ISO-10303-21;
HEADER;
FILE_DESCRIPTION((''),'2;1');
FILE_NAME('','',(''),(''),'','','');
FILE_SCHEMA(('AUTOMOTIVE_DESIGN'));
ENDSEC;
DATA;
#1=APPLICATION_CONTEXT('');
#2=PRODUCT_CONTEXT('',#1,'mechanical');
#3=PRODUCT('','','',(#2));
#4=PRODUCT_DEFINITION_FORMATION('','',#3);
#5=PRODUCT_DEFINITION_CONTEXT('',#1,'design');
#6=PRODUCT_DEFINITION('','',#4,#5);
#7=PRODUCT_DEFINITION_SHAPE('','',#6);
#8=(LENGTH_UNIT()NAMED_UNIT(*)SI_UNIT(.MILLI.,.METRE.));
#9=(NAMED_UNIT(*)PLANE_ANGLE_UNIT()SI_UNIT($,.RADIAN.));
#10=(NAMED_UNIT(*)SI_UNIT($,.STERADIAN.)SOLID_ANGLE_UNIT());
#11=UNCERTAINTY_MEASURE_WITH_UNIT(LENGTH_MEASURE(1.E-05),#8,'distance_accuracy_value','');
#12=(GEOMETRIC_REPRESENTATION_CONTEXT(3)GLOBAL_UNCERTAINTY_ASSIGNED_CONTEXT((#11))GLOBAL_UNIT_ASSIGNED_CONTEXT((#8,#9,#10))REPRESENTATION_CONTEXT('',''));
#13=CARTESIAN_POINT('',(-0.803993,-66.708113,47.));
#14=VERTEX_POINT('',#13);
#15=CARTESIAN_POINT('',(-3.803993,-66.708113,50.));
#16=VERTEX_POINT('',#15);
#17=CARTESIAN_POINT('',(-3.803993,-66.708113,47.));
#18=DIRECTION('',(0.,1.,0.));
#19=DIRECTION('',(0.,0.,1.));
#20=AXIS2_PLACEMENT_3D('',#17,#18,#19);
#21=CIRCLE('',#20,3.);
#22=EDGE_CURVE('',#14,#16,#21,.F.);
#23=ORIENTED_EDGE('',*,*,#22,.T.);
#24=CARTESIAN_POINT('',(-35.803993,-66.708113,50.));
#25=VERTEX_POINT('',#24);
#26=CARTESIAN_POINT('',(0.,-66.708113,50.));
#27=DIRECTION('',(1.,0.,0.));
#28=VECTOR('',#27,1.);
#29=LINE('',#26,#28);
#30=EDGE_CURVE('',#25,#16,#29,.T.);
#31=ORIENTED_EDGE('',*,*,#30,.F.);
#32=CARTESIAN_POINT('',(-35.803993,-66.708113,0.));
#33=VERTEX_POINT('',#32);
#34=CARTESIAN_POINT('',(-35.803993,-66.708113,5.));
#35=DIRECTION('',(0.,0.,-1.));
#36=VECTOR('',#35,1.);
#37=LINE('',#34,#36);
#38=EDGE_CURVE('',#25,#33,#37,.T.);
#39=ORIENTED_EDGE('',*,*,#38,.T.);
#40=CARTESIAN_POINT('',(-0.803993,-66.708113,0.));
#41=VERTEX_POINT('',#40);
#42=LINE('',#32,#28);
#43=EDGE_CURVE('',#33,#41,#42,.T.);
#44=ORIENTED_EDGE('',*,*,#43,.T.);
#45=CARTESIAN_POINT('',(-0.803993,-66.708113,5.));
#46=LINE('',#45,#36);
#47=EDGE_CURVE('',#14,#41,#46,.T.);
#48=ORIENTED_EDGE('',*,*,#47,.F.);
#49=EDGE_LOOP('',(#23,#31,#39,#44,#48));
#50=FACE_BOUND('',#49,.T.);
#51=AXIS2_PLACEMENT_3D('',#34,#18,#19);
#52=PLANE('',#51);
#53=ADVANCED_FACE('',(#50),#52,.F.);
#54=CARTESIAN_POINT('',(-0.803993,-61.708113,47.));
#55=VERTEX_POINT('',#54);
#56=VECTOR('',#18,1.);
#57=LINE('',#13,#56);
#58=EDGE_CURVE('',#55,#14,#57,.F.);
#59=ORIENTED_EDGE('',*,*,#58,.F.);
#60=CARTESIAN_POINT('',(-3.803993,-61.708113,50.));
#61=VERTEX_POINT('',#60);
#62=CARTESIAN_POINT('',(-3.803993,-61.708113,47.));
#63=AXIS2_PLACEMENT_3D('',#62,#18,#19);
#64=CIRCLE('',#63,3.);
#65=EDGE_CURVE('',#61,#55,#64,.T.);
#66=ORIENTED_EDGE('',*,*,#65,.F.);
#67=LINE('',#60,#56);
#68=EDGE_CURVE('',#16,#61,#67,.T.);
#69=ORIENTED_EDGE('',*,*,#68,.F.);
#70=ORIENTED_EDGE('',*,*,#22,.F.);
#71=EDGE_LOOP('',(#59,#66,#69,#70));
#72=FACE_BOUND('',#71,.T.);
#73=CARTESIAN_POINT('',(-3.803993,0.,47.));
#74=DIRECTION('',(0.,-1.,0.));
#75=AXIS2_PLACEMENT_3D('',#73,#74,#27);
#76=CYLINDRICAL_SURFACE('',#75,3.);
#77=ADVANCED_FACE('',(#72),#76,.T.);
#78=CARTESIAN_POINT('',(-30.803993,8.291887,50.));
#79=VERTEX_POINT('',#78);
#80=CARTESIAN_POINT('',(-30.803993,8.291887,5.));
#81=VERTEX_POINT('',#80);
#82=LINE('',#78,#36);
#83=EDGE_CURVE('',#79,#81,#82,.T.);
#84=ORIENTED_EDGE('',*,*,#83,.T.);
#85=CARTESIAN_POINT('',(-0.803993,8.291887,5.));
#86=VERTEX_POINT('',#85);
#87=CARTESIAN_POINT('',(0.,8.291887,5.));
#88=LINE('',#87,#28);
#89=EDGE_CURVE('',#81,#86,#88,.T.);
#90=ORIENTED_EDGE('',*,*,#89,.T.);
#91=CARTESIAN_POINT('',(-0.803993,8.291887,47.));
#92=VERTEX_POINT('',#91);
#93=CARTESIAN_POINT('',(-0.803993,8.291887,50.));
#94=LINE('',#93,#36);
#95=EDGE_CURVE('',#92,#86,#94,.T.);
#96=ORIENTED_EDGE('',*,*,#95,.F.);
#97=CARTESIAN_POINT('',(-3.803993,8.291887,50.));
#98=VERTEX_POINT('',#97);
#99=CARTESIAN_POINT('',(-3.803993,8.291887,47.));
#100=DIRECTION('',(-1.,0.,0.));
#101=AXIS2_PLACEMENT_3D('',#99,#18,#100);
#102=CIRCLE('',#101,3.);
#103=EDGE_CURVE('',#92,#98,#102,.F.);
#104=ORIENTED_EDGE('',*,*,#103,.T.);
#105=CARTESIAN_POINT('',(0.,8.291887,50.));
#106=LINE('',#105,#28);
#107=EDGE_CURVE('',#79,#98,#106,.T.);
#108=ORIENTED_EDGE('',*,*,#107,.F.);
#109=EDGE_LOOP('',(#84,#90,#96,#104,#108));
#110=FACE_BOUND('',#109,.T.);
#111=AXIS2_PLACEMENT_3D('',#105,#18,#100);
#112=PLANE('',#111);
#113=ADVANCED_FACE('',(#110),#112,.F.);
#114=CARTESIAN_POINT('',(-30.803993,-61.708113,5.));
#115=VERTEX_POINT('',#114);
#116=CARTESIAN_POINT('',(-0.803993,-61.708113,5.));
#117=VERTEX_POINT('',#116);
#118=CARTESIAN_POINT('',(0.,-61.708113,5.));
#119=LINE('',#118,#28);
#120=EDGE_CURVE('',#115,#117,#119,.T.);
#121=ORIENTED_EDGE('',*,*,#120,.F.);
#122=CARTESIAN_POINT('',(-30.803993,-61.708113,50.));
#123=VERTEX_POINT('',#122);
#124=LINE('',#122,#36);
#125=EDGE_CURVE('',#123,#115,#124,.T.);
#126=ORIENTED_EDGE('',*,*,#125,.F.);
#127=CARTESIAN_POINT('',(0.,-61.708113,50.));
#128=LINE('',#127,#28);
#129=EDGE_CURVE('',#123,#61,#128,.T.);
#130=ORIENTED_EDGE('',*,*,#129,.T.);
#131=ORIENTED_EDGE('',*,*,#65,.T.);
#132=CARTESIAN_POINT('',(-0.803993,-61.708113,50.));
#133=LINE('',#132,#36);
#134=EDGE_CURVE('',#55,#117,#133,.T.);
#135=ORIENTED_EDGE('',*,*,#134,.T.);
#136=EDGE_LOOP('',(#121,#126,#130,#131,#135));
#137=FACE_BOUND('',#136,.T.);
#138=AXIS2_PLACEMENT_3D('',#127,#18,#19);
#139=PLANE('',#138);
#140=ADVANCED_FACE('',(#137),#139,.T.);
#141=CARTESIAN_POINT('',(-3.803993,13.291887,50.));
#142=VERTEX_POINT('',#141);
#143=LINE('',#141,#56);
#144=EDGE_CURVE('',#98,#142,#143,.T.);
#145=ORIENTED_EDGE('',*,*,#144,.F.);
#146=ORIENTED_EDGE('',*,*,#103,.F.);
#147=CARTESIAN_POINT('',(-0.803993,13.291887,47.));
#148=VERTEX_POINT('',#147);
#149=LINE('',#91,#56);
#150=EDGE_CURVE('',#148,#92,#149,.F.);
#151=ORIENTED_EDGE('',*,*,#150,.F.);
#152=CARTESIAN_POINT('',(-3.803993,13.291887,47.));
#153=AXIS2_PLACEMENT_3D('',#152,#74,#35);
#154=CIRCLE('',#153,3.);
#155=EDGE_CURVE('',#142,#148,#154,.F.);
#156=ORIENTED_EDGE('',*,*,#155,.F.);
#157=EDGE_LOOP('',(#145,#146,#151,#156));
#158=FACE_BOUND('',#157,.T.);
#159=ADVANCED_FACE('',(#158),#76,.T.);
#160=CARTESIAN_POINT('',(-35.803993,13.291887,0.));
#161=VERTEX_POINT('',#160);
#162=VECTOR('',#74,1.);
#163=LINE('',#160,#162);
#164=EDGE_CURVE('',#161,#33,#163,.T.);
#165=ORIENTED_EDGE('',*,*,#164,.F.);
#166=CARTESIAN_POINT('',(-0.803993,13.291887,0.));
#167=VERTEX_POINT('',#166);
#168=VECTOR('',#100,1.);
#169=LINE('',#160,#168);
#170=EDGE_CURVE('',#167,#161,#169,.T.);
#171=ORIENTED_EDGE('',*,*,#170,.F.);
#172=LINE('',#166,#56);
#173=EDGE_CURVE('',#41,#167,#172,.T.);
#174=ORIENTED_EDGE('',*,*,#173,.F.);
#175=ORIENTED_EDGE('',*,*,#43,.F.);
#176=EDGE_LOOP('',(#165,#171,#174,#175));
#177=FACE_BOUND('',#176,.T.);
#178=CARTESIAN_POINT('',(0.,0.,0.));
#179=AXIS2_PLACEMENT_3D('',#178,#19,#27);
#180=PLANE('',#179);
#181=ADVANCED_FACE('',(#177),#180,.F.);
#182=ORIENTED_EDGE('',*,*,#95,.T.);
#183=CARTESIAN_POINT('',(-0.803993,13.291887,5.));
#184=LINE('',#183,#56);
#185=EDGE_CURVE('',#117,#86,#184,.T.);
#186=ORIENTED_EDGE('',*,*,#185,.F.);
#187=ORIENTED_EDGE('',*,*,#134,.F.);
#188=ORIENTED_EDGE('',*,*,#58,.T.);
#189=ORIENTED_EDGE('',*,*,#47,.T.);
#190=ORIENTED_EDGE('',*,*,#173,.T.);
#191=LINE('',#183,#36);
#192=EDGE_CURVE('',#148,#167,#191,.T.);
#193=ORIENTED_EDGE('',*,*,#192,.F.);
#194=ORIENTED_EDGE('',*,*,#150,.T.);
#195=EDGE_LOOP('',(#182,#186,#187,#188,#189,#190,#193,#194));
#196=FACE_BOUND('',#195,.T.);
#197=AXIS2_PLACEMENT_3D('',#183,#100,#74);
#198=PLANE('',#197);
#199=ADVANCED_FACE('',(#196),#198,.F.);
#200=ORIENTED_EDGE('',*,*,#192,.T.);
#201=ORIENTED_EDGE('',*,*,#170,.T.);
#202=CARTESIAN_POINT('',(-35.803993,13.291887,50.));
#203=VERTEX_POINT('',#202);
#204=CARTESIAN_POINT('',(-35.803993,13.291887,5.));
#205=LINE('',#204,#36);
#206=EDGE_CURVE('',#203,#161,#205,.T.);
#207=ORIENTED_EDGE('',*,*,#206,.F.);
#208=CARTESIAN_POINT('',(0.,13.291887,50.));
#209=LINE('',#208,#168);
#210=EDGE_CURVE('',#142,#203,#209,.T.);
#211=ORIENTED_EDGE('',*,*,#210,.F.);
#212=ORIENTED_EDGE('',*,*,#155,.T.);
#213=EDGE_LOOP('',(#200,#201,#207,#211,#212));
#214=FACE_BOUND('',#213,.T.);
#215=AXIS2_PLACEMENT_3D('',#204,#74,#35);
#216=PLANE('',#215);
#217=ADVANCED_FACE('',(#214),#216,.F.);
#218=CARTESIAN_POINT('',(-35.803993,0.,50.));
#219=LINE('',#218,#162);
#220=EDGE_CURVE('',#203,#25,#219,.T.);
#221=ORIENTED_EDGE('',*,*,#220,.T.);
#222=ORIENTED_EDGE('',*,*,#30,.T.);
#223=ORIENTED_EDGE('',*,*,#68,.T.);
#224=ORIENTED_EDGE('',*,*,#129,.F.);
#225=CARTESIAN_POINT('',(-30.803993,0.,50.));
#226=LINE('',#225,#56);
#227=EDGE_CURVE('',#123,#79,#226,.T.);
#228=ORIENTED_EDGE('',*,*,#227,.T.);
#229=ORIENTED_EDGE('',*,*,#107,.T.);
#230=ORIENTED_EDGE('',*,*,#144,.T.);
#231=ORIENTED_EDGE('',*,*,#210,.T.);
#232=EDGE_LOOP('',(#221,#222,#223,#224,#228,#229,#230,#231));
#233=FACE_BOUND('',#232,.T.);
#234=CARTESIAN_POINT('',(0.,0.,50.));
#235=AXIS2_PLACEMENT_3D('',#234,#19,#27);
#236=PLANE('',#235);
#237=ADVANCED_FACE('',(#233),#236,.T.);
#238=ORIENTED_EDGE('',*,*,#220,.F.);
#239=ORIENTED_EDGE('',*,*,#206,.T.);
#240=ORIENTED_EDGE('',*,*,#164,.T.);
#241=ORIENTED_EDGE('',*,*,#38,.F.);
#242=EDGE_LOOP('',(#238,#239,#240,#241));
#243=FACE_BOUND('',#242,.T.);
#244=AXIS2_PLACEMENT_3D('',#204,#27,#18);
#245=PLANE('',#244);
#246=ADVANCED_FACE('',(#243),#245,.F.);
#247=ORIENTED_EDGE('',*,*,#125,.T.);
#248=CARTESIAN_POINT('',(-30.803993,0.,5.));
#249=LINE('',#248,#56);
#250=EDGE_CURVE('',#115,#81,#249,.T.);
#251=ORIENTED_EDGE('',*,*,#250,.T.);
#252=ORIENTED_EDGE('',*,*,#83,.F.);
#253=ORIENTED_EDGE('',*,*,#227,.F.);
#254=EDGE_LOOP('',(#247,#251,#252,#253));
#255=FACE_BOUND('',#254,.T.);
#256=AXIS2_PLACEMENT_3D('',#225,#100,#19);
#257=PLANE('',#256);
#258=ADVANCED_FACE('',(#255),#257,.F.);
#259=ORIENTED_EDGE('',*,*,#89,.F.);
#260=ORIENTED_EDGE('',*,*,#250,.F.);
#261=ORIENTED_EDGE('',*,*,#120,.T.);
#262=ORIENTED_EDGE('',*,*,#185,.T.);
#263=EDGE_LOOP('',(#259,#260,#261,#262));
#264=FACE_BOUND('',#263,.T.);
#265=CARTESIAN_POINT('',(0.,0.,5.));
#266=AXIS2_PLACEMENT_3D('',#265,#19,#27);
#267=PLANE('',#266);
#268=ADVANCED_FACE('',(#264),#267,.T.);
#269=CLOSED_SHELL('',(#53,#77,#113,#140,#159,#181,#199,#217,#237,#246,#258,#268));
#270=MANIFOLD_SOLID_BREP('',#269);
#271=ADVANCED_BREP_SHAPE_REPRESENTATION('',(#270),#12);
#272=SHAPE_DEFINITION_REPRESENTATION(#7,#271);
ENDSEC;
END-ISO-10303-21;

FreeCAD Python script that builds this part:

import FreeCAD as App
import Part
import Sketcher
from FreeCAD import Vector
Q = App.Units.Quantity


def edges_at(feature, points):
    """Names of the edges that pass closest to the given points."""
    edges = feature.Shape.Edges
    near = lambda p: min(range(len(edges)), key=lambda i: edges[i].distToShape(Part.Vertex(*p))[0])
    return sorted({f"Edge{near(p) + 1}" for p in points})


def add_polygon(sketch, points):
    """Adds a closed chain of lines whose ends are joined by coincident constraints."""
    first, n = sketch.GeometryCount, len(points)
    for a, b in zip(points, points[1:] + points[:1]):
        sketch.addGeometry(Part.LineSegment(App.Vector(*a, 0), App.Vector(*b, 0)), False)
    for i in range(n):
        sketch.addConstraint(Sketcher.Constraint("Coincident", first + i, 2, first + (i + 1) % n, 1))

doc = App.newDocument("Part")
params = doc.addObject("Spreadsheet::Sheet", "Params")
for row, (alias, value) in enumerate([
    ("sketch1_width", "35 mm"),
    ("sketch1_height", "80 mm"),
    ("pad1_length", "5 mm"),
    ("sketch2_width", "35 mm"),
    ("sketch2_width2", "30 mm"),
    ("sketch2_height", "80 mm"),
    ("sketch2_height2", "5 mm"),
    ("pad2_length", "45 mm"),
    ("fillet_radius", "3 mm"),
], start=1):
    params.set(f"A{row}", alias)
    params.set(f"B{row}", "=" + value)
    params.setAlias(f"B{row}", alias)

body = doc.addObject("PartDesign::Body", "Body")

# Sketch on XY plane
sketch1 = body.newObject("Sketcher::SketchObject", "Sketch")
sketch1.AttachmentSupport = (doc.getObject("XY_Plane"), [""])
sketch1.MapMode = "FlatFace"
add_polygon(sketch1, [(-35.803993, 13.291887), (-35.803993, -66.708113), (-0.803993, -66.708113), (-0.803993, 13.291887)])  # lines 0-3
sketch1.addConstraint([
    Sketcher.Constraint("Vertical", 0),
    Sketcher.Constraint("Horizontal", 1),
    Sketcher.Constraint("Vertical", 2),
    Sketcher.Constraint("Horizontal", 3),
    Sketcher.Constraint("DistanceX", 1, 1, 1, 2, Q("35 mm")),
    Sketcher.Constraint("DistanceY", 0, 2, 0, 1, Q("80 mm")),
    Sketcher.Constraint("DistanceX", 0, 2, -1, 1, Q("35.803993 mm")),
    Sketcher.Constraint("DistanceY", 0, 2, -1, 1, Q("66.708113 mm")),
])
sketch1.setExpression("Constraints[8]", "Params.sketch1_width")
sketch1.setExpression("Constraints[9]", "Params.sketch1_height")
pad1 = body.newObject("PartDesign::Pad", "Pad")
pad1.Profile = sketch1
pad1.setExpression("Length", "Params.pad1_length")

# Sketch on XY plane
sketch2 = body.newObject("Sketcher::SketchObject", "Sketch001")
sketch2.AttachmentSupport = (doc.getObject("XY_Plane"), [""])
sketch2.MapMode = "FlatFace"
sketch2.AttachmentOffset = App.Placement(Vector(0, 0, 5), App.Rotation())
add_polygon(sketch2, [(-35.803993, 13.291887), (-35.803993, -66.708113), (-0.803993, -66.708113), (-0.803993, -61.708113), (-30.803993, -61.708113), (-30.803993, 8.291887), (-0.803993, 8.291887), (-0.803993, 13.291887)])  # lines 0-7
sketch2.addConstraint([
    Sketcher.Constraint("Vertical", 0),
    Sketcher.Constraint("Horizontal", 1),
    Sketcher.Constraint("Vertical", 2),
    Sketcher.Constraint("Horizontal", 3),
    Sketcher.Constraint("Vertical", 4),
    Sketcher.Constraint("Horizontal", 5),
    Sketcher.Constraint("Vertical", 6),
    Sketcher.Constraint("Horizontal", 7),
    Sketcher.Constraint("Vertical", 2, 2, 5, 2),
    Sketcher.Constraint("Equal", 2, 6),
    Sketcher.Constraint("DistanceX", 1, 1, 1, 2, Q("35 mm")),
    Sketcher.Constraint("DistanceX", 3, 2, 3, 1, Q("30 mm")),
    Sketcher.Constraint("DistanceY", 0, 2, 0, 1, Q("80 mm")),
    Sketcher.Constraint("DistanceY", 2, 1, 2, 2, Q("5 mm")),
    Sketcher.Constraint("DistanceX", 0, 2, -1, 1, Q("35.803993 mm")),
    Sketcher.Constraint("DistanceY", 0, 2, -1, 1, Q("66.708113 mm")),
])
sketch2.setExpression("Constraints[18]", "Params.sketch2_width")
sketch2.setExpression("Constraints[19]", "Params.sketch2_width2")
sketch2.setExpression("Constraints[20]", "Params.sketch2_height")
sketch2.setExpression("Constraints[21]", "Params.sketch2_height2")
pad2 = body.newObject("PartDesign::Pad", "Pad001")
pad2.Profile = sketch2
pad2.setExpression("Length", "Params.pad2_length")
doc.recompute()

fillet = body.newObject("PartDesign::Fillet", "Fillet")
fillet.Base = (pad2, edges_at(pad2, [(-0.804, -64.208, 50), (-0.804, 10.792, 50)]))
fillet.setExpression("Radius", "Params.fillet_radius")

doc.recompute()
